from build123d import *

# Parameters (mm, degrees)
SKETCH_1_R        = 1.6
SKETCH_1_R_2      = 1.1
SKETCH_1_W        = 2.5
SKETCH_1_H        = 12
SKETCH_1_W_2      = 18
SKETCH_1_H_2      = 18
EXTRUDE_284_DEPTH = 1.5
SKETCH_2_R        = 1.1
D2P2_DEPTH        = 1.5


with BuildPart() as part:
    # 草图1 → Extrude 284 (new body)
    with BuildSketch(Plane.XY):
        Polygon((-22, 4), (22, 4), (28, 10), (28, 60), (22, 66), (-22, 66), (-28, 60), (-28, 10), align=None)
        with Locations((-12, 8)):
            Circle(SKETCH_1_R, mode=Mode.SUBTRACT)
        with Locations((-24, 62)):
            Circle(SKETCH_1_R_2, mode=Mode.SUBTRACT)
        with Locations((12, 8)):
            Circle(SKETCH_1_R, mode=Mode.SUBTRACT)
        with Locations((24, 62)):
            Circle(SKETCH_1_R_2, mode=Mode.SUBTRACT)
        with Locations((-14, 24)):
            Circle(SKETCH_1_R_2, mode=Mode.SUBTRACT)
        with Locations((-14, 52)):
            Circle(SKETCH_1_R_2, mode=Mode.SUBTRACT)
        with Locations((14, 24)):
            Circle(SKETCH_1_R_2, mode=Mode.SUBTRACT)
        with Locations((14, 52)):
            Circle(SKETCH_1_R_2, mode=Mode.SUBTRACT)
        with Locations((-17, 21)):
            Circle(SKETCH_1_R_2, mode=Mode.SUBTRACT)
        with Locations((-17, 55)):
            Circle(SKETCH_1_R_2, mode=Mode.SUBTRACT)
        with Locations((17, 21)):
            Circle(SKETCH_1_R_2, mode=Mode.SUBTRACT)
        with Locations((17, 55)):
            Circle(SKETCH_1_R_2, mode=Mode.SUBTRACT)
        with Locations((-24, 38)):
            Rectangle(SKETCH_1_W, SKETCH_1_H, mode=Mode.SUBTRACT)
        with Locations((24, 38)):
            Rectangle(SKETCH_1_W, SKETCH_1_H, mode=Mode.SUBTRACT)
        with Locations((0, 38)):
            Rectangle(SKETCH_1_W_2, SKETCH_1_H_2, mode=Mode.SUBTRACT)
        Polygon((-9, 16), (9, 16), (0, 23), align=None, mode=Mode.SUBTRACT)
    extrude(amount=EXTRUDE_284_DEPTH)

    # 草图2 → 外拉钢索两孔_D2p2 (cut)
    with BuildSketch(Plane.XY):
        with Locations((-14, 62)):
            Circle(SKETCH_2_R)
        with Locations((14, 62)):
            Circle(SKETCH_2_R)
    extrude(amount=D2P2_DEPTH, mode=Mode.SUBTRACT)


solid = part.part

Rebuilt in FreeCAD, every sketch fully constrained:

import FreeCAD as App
import Part
import Sketcher
Q = App.Units.Quantity


def add_polygon(sketch, points):
    """Adds a closed chain of lines whose ends are joined by coincident constraints."""
    first, n = sketch.GeometryCount, len(points)
    for a, b in zip(points, points[1:] + points[:1]):
        sketch.addGeometry(Part.LineSegment(App.Vector(*a, 0), App.Vector(*b, 0)), False)
    for i in range(n):
        sketch.addConstraint(Sketcher.Constraint("Coincident", first + i, 2, first + (i + 1) % n, 1))

doc = App.newDocument("Part")
params = doc.addObject("Spreadsheet::Sheet", "Params")
for row, (alias, value) in enumerate([
    ("sketch1_diameter", "3.2 mm"),
    ("sketch1_diameter2", "2.2 mm"),
    ("sketch1_width", "44 mm"),
    ("sketch1_width2", "18 mm"),
    ("sketch1_height", "50 mm"),
    ("pad1_length", "1.5 mm"),
    ("sketch2_diameter", "2.2 mm"),
    ("pocket1_length", "1.5 mm"),
], start=1):
    params.set(f"A{row}", alias)
    params.set(f"B{row}", "=" + value)
    params.setAlias(f"B{row}", alias)

body = doc.addObject("PartDesign::Body", "Body")

# Sketch on XY plane
sketch1 = doc.addObject("Sketcher::SketchObject", "Sketch")
body.addObject(sketch1)
sketch1.AttachmentSupport = (doc.XY_Plane, [""])
sketch1.MapMode = "FlatFace"
add_polygon(sketch1, [(-22, 4), (22, 4), (28, 10), (28, 60), (22, 66), (-22, 66), (-28, 60), (-28, 10)])  # lines 0-7
sketch1.addGeometry(Part.Circle(App.Vector(-12, 8, 0), App.Vector(0, 0, 1), 1.6), False)  # 8
sketch1.addGeometry(Part.Circle(App.Vector(-17, 21, 0), App.Vector(0, 0, 1), 1.1), False)  # 9
sketch1.addGeometry(Part.Circle(App.Vector(-14, 24, 0), App.Vector(0, 0, 1), 1.1), False)  # 10
sketch1.addGeometry(Part.Circle(App.Vector(12, 8, 0), App.Vector(0, 0, 1), 1.6), False)  # 11
add_polygon(sketch1, [(9, 16), (-9, 16), (0, 23)])  # lines 12-14
sketch1.addGeometry(Part.Circle(App.Vector(14, 24, 0), App.Vector(0, 0, 1), 1.1), False)  # 15
sketch1.addGeometry(Part.Circle(App.Vector(17, 21, 0), App.Vector(0, 0, 1), 1.1), False)  # 16
add_polygon(sketch1, [(-22.8, 32), (-25.2, 32), (-25.2, 44), (-22.8, 44)])  # lines 17-20
sketch1.addGeometry(Part.Circle(App.Vector(-14, 52, 0), App.Vector(0, 0, 1), 1.1), False)  # 21
sketch1.addGeometry(Part.Circle(App.Vector(-17, 55, 0), App.Vector(0, 0, 1), 1.1), False)  # 22
sketch1.addGeometry(Part.Circle(App.Vector(-24, 62, 0), App.Vector(0, 0, 1), 1.1), False)  # 23
add_polygon(sketch1, [(9, 29), (-9, 29), (-9, 47), (9, 47)])  # lines 24-27
add_polygon(sketch1, [(25.2, 32), (22.8, 32), (22.8, 44), (25.2, 44)])  # lines 28-31
sketch1.addGeometry(Part.Circle(App.Vector(14, 52, 0), App.Vector(0, 0, 1), 1.1), False)  # 32
sketch1.addGeometry(Part.Circle(App.Vector(17, 55, 0), App.Vector(0, 0, 1), 1.1), False)  # 33
sketch1.addGeometry(Part.Circle(App.Vector(24, 62, 0), App.Vector(0, 0, 1), 1.1), False)  # 34
sketch1.addConstraint([
    Sketcher.Constraint("Horizontal", 0),
    Sketcher.Constraint("Vertical", 2),
    Sketcher.Constraint("Horizontal", 4),
    Sketcher.Constraint("Vertical", 6),
    Sketcher.Constraint("Horizontal", 12),
    Sketcher.Constraint("Horizontal", 17),
    Sketcher.Constraint("Vertical", 18),
    Sketcher.Constraint("Horizontal", 19),
    Sketcher.Constraint("Vertical", 20),
    Sketcher.Constraint("Horizontal", 24),
    Sketcher.Constraint("Vertical", 25),
    Sketcher.Constraint("Horizontal", 26),
    Sketcher.Constraint("Vertical", 27),
    Sketcher.Constraint("Horizontal", 28),
    Sketcher.Constraint("Vertical", 29),
    Sketcher.Constraint("Horizontal", 30),
    Sketcher.Constraint("Vertical", 31),
    Sketcher.Constraint("Equal", 9, 10),
    Sketcher.Constraint("Equal", 8, 11),
    Sketcher.Constraint("Equal", 10, 15),
    Sketcher.Constraint("Equal", 15, 16),
    Sketcher.Constraint("Equal", 16, 21),
    Sketcher.Constraint("Equal", 21, 22),
    Sketcher.Constraint("Equal", 22, 23),
    Sketcher.Constraint("Equal", 23, 32),
    Sketcher.Constraint("Equal", 32, 33),
    Sketcher.Constraint("Equal", 33, 34),
    Sketcher.Constraint("Symmetric", 8, 3, 11, 3, -2),
    Sketcher.Constraint("Symmetric", 10, 3, 15, 3, -2),
    Sketcher.Constraint("Symmetric", 9, 3, 16, 3, -2),
    Sketcher.Constraint("Symmetric", 21, 3, 32, 3, -2),
    Sketcher.Constraint("Symmetric", 22, 3, 33, 3, -2),
    Sketcher.Constraint("Symmetric", 23, 3, 34, 3, -2),
    Sketcher.Constraint("Symmetric", 2, 2, 5, 2, -2),
    Sketcher.Constraint("Symmetric", 20, 2, 28, 2, -2),
    Sketcher.Constraint("Symmetric", 18, 2, 30, 2, -2),
    Sketcher.Constraint("PointOnObject", 13, 2, -2),
    Sketcher.Constraint("Perpendicular", 1, 3),
    Sketcher.Constraint("Perpendicular", 3, 5),
    Sketcher.Constraint("Perpendicular", 5, 7),
    Sketcher.Constraint("Horizontal", 1, 2, 6, 2),
    Sketcher.Constraint("Vertical", 10, 3, 21, 3),
    Sketcher.Constraint("Vertical", 9, 3, 22, 3),
    Sketcher.Constraint("Vertical", 0, 2, 3, 2),
    Sketcher.Constraint("Vertical", 4, 2, 7, 2),
    Sketcher.Constraint("Vertical", 12, 2, 24, 2),
    Sketcher.Constraint("Vertical", 14, 2, 26, 2),
    Sketcher.Constraint("Equal", 26, 25),
    Sketcher.Constraint("Equal", 13, 14),
    Sketcher.Constraint("Diameter", 8, Q("3.2 mm")),
    Sketcher.Constraint("Diameter", 9, Q("2.2 mm")),
    Sketcher.Constraint("DistanceX", 0, 1, 0, 2, Q("44 mm")),
    Sketcher.Constraint("DistanceX", 12, 2, 12, 1, Q("18 mm")),
    Sketcher.Constraint("DistanceY", 2, 1, 2, 2, Q("50 mm")),
    Sketcher.Constraint("DistanceY", 18, 1, 18, 2, Q("12 mm")),
    Sketcher.Constraint("DistanceX", 17, 2, 17, 1, Q("2.5 mm")),
    Sketcher.Constraint("DistanceX", 8, 3, -1, 1, Q("12 mm")),
    Sketcher.Constraint("DistanceY", -1, 1, 8, 3, Q("8 mm")),
    Sketcher.Constraint("DistanceX", 9, 3, -1, 1, Q("17 mm")),
    Sketcher.Constraint("DistanceY", -1, 1, 9, 3, Q("21 mm")),
    Sketcher.Constraint("DistanceX", 10, 3, -1, 1, Q("14 mm")),
    Sketcher.Constraint("DistanceY", -1, 1, 10, 3, Q("24 mm")),
    Sketcher.Constraint("DistanceY", -1, 1, 21, 3, Q("52 mm")),
    Sketcher.Constraint("DistanceY", -1, 1, 22, 3, Q("55 mm")),
    Sketcher.Constraint("DistanceX", 23, 3, -1, 1, Q("24 mm")),
    Sketcher.Constraint("DistanceY", -1, 1, 23, 3, Q("62 mm")),
    Sketcher.Constraint("DistanceY", -1, 1, 0, 2, Q("4 mm")),
    Sketcher.Constraint("DistanceX", -1, 1, 1, 2, Q("28 mm")),
    Sketcher.Constraint("DistanceY", -1, 1, 12, 2, Q("16 mm")),
    Sketcher.Constraint("DistanceY", -1, 1, 13, 2, Q("23 mm")),
    Sketcher.Constraint("DistanceY", -1, 1, 17, 2, Q("32 mm")),
    Sketcher.Constraint("DistanceY", -1, 1, 24, 2, Q("29 mm")),
    Sketcher.Constraint("DistanceX", 17, 2, -1, 1, Q("25.25 mm")),
])
sketch1.setExpression("Constraints[72]", "Params.sketch1_diameter")
sketch1.setExpression("Constraints[73]", "Params.sketch1_diameter2")
sketch1.setExpression("Constraints[74]", "Params.sketch1_width")
sketch1.setExpression("Constraints[75]", "Params.sketch1_width2")
sketch1.setExpression("Constraints[76]", "Params.sketch1_height")
pad1 = doc.addObject("PartDesign::Pad", "Pad")
body.addObject(pad1)
pad1.Profile = sketch1
pad1.setExpression("Length", "Params.pad1_length")

# Sketch on XY plane
sketch2 = doc.addObject("Sketcher::SketchObject", "Sketch001")
body.addObject(sketch2)
sketch2.AttachmentSupport = (doc.XY_Plane, [""])
sketch2.MapMode = "FlatFace"
sketch2.addGeometry([
    Part.Circle(App.Vector(-14, 62, 0), App.Vector(0, 0, 1), 1.1),
    Part.Circle(App.Vector(14, 62, 0), App.Vector(0, 0, 1), 1.1),
], False)
sketch2.addConstraint([
    Sketcher.Constraint("Equal", 0, 1),
    Sketcher.Constraint("Symmetric", 0, 3, 1, 3, -2),
    Sketcher.Constraint("Diameter", 0, Q("2.2 mm")),
    Sketcher.Constraint("DistanceX", 0, 3, -1, 1, Q("14 mm")),
    Sketcher.Constraint("DistanceY", -1, 1, 0, 3, Q("62 mm")),
])
sketch2.setExpression("Constraints[2]", "Params.sketch2_diameter")
pocket1 = doc.addObject("PartDesign::Pocket", "Pocket")
body.addObject(pocket1)
pocket1.Profile = sketch2
pocket1.setExpression("Length", "Params.pocket1_length")
pocket1.Reversed = True

doc.recompute()
